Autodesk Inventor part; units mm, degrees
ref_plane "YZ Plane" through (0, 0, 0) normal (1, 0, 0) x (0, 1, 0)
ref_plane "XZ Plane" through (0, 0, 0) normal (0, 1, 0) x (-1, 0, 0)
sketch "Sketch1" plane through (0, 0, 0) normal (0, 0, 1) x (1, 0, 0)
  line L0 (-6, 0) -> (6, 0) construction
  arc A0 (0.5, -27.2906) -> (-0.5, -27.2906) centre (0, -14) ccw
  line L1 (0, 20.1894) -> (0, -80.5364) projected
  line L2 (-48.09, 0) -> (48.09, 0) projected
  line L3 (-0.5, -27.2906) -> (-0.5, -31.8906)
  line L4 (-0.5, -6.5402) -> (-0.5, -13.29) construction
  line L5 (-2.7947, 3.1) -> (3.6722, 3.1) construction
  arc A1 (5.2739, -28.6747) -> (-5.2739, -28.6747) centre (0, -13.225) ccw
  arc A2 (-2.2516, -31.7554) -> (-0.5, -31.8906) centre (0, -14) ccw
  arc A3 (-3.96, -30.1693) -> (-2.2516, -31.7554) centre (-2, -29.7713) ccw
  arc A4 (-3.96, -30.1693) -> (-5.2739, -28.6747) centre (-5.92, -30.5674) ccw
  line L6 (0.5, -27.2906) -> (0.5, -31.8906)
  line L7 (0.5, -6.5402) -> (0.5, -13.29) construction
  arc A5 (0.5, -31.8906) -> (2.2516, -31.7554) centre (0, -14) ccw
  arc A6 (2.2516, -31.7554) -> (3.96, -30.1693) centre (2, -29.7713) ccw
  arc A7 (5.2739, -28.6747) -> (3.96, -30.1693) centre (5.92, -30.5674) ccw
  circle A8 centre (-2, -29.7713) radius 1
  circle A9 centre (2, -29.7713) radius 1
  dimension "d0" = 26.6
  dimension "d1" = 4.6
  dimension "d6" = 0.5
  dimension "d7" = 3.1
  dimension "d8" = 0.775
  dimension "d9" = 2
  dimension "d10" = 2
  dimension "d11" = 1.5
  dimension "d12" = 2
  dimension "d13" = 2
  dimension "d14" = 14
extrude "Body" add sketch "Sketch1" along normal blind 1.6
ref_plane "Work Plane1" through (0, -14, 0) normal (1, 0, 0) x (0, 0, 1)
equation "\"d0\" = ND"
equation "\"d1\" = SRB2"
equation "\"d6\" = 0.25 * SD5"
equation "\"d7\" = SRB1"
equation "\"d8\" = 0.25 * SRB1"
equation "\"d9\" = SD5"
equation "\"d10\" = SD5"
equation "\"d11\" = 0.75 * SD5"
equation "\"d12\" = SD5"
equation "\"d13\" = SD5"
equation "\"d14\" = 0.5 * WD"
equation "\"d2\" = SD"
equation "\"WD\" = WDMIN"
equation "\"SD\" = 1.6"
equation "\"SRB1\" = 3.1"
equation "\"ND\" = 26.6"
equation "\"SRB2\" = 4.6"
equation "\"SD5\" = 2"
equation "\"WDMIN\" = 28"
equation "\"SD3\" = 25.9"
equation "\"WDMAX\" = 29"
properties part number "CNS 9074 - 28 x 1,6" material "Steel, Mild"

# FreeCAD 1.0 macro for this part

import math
import FreeCAD as App
import Part
import Sketcher
from FreeCAD import Vector
Q = App.Units.Quantity

doc = App.newDocument("Part")
body = doc.addObject("PartDesign::Body", "Body")

sketch1 = body.newObject("Sketcher::SketchObject", "Sketch")
sketch1.AttachmentSupport = (doc.getObject("XY_Plane"), [""])
sketch1.MapMode = "FlatFace"
sketch1.addGeometry([
    Part.LineSegment(Vector(0.5, -27.2906, 0), Vector(0.5, -31.8906, 0)),
    Part.ArcOfCircle(Part.Circle(Vector(-0.000221, -13.995792, 0), Vector(0, 0, 1), 17.901798), math.radians(-88.398804), math.radians(-82.773769)),
    Part.ArcOfCircle(Part.Circle(Vector(2, -29.7713, 0), Vector(0, 0, 1), 1.999989), math.radians(-82.773002), math.radians(-11.478482)),
    Part.ArcOfCircle(Part.Circle(Vector(5.92, -30.5674, 0), Vector(0, 0, 1), 1.99994), math.radians(108.848067), math.radians(168.518711)),
    Part.ArcOfCircle(Part.Circle(Vector(0, -13.225, 0), Vector(0, 0, 1), 16.32505), math.radians(-71.15218), math.radians(251.15218)),
    Part.ArcOfCircle(Part.Circle(Vector(-5.92, -30.5674, 0), Vector(0, 0, 1), 2.000021), math.radians(11.481289), math.radians(71.151933)),
    Part.ArcOfCircle(Part.Circle(Vector(-2, -29.7713, 0), Vector(0, 0, 1), 2.000001), math.radians(-168.521518), math.radians(-97.226998)),
    Part.ArcOfCircle(Part.Circle(Vector(-0.000427, -14.00419, 0), Vector(0, 0, 1), 17.893385), math.radians(-97.227554), math.radians(-91.599873)),
    Part.LineSegment(Vector(-0.5, -31.8906, 0), Vector(-0.5, -27.2906, 0)),
    Part.ArcOfCircle(Part.Circle(Vector(0, -14, 0), Vector(0, 0, 1), 13.300002), math.radians(-87.845516), math.radians(267.845516)),
    Part.Circle(Vector(2, -29.7713, 0), Vector(0, 0, 1), 1),
    Part.Circle(Vector(-2, -29.7713, 0), Vector(0, 0, 1), 1),
], False)
sketch1.addConstraint([
    Sketcher.Constraint("Coincident", 0, 2, 1, 1),
    Sketcher.Constraint("Coincident", 1, 2, 2, 1),
    Sketcher.Constraint("Coincident", 2, 2, 3, 2),
    Sketcher.Constraint("Coincident", 3, 1, 4, 1),
    Sketcher.Constraint("Coincident", 4, 2, 5, 2),
    Sketcher.Constraint("Coincident", 5, 1, 6, 1),
    Sketcher.Constraint("Coincident", 6, 2, 7, 1),
    Sketcher.Constraint("Coincident", 7, 2, 8, 1),
    Sketcher.Constraint("Coincident", 8, 2, 9, 2),
    Sketcher.Constraint("Coincident", 9, 1, 0, 1),
    Sketcher.Constraint("Vertical", 0),
    Sketcher.Constraint("Vertical", 8),
    Sketcher.Constraint("Coincident", 10, 3, 2, 3),
    Sketcher.Constraint("Coincident", 11, 3, 6, 3),
    Sketcher.Constraint("PointOnObject", 4, 3, -2),
    Sketcher.Constraint("PointOnObject", 9, 3, -2),
    Sketcher.Constraint("Diameter", 10, Q("2 mm")),
    Sketcher.Constraint("Diameter", 11, Q("2 mm")),
    Sketcher.Constraint("Radius", 2, Q("2 mm")),
    Sketcher.Constraint("Radius", 3, Q("2 mm")),
    Sketcher.Constraint("Radius", 5, Q("2 mm")),
    Sketcher.Constraint("Radius", 6, Q("2 mm")),
    Sketcher.Constraint("Radius", 9, Q("13.3 mm")),
    Sketcher.Constraint("DistanceY", 0, 2, 0, 1, Q("4.6 mm")),
    Sketcher.Constraint("DistanceY", 8, 1, 8, 2, Q("4.6 mm")),
    Sketcher.Constraint("DistanceX", -1, 1, 2, 3, Q("2 mm")),
    Sketcher.Constraint("DistanceX", 6, 3, -1, 1, Q("2 mm")),
    Sketcher.Constraint("DistanceY", 9, 3, -1, 1, Q("14 mm")),
    Sketcher.Constraint("DistanceX", -1, 1, 0, 2, Q("0.5 mm")),
    Sketcher.Constraint("DistanceX", 7, 2, -1, 1, Q("0.5 mm")),
    Sketcher.Constraint("Radius", 4, Q("16.325 mm")),
    Sketcher.Constraint("DistanceY", 9, 3, 4, 3, Q("0.775 mm")),
    Sketcher.Constraint("Radius", 1, Q("17.9018 mm")),
    Sketcher.Constraint("Radius", 7, Q("17.8934 mm")),
    Sketcher.Constraint("DistanceX", 1, 3, 2, 3, Q("2.0002 mm")),
    Sketcher.Constraint("DistanceX", 6, 3, 7, 3, Q("1.9996 mm")),
    Sketcher.Constraint("DistanceX", -1, 1, 2, 2, Q("3.96 mm")),
    Sketcher.Constraint("DistanceX", 5, 1, -1, 1, Q("3.96 mm")),
    Sketcher.Constraint("DistanceX", -1, 1, 3, 1, Q("5.274 mm")),
    Sketcher.Constraint("DistanceX", 4, 2, -1, 1, Q("5.274 mm")),
    Sketcher.Constraint("DistanceY", 1, 2, 2, 3, Q("1.984 mm")),
    Sketcher.Constraint("DistanceY", 6, 2, 6, 3, Q("1.984 mm")),
])
pad1 = body.newObject("PartDesign::Pad", "Pad")
pad1.Profile = sketch1
pad1.Length = 1.6

doc.recompute()
